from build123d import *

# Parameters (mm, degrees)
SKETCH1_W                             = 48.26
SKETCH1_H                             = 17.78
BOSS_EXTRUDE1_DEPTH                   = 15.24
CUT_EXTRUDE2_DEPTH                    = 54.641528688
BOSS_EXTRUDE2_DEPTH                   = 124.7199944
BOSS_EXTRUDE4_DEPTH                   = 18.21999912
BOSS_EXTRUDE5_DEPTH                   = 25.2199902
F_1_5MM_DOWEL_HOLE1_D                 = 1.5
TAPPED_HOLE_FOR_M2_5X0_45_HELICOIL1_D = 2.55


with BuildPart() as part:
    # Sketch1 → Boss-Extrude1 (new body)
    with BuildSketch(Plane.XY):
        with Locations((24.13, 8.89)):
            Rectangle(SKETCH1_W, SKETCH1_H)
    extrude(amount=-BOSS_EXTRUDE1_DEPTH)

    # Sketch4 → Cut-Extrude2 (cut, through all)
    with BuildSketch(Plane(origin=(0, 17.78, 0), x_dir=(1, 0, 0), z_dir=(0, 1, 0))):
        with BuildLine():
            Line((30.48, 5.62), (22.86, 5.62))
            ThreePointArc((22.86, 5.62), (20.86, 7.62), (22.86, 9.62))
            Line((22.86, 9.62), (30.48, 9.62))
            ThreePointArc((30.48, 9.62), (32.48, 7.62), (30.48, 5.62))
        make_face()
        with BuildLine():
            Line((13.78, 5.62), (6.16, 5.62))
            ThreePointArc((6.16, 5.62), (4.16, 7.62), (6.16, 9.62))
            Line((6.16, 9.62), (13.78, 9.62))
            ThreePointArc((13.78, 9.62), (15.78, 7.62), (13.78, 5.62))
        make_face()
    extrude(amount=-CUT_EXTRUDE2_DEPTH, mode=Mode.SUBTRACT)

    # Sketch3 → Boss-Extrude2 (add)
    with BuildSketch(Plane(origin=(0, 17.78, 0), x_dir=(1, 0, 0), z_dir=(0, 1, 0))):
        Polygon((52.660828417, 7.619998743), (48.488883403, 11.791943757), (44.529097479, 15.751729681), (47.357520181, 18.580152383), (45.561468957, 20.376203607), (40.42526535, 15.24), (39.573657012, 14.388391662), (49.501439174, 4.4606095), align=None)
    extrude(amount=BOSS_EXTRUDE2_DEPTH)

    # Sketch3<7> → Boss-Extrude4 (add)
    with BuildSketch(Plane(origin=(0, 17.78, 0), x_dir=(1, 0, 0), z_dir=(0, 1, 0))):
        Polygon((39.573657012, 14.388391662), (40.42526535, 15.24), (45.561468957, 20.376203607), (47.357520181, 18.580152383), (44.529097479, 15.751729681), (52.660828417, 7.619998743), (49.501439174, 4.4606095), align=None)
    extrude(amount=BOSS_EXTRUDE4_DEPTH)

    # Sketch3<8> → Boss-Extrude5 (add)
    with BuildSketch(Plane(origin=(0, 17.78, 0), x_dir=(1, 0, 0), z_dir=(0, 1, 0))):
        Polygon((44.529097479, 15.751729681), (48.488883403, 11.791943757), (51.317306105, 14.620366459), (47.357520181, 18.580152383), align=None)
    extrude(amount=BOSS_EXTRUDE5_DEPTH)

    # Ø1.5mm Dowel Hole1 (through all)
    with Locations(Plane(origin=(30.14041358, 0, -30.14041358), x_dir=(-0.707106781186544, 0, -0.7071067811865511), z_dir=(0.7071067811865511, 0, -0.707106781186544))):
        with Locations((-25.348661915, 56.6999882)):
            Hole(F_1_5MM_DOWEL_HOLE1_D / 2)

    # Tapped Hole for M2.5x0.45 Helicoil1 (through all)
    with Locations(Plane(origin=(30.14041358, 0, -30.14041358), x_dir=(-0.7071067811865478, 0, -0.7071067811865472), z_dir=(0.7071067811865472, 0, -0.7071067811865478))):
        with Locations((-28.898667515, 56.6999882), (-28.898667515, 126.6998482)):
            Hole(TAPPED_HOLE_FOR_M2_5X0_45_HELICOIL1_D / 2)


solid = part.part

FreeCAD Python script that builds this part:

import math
import FreeCAD as App
import Part
import Sketcher
from FreeCAD import Vector
Q = App.Units.Quantity

doc = App.newDocument("Part")
body = doc.addObject("PartDesign::Body", "Body")

# Sketch on XY plane
sketch1 = body.newObject("Sketcher::SketchObject", "Sketch")
sketch1.AttachmentSupport = (doc.getObject("XY_Plane"), [""])
sketch1.MapMode = "FlatFace"
sketch1.addGeometry(Part.LineSegment(Vector(0, 17.78, 0), Vector(0, 0, 0)), False)
sketch1.addGeometry(Part.LineSegment(Vector(0, 0, 0), Vector(48.26, 0, 0)), False)
sketch1.addGeometry(Part.LineSegment(Vector(48.26, 0, 0), Vector(48.26, 17.78, 0)), False)
sketch1.addGeometry(Part.LineSegment(Vector(48.26, 17.78, 0), Vector(0, 17.78, 0)), False)
sketch1.addConstraint(Sketcher.Constraint("Coincident", 0, 2, 1, 1))
sketch1.addConstraint(Sketcher.Constraint("Coincident", 1, 2, 2, 1))
sketch1.addConstraint(Sketcher.Constraint("Coincident", 2, 2, 3, 1))
sketch1.addConstraint(Sketcher.Constraint("Coincident", 3, 2, 0, 1))
sketch1.addConstraint(Sketcher.Constraint("Vertical", 0))
sketch1.addConstraint(Sketcher.Constraint("Horizontal", 1))
sketch1.addConstraint(Sketcher.Constraint("Vertical", 2))
sketch1.addConstraint(Sketcher.Constraint("Horizontal", 3))
sketch1.addConstraint(Sketcher.Constraint("Coincident", 0, 2, -1, 1))
sketch1.addConstraint(Sketcher.Constraint("DistanceX", 1, 1, 1, 2, Q("1.9 in")))
sketch1.addConstraint(Sketcher.Constraint("DistanceY", 0, 2, 0, 1, Q("0.7 in")))
pad1 = body.newObject("PartDesign::Pad", "Pad")
pad1.Profile = sketch1
pad1.Length = Q("0.6 in")
pad1.Reversed = True

# Sketch on XZ plane
sketch2 = body.newObject("Sketcher::SketchObject", "Sketch001")
sketch2.AttachmentSupport = (doc.getObject("XZ_Plane"), [""])
sketch2.MapMode = "FlatFace"
sketch2.AttachmentOffset = App.Placement(Vector(0, 0, -0.7 * 25.4), App.Rotation())
sketch2.addGeometry(Part.LineSegment(Vector(22.86, -5.62, 0), Vector(30.48, -5.62, 0)), False)
sketch2.addGeometry(Part.ArcOfCircle(Part.Circle(Vector(30.48, -7.62, 0), Vector(0, 0, 1), 2), math.radians(-90), math.radians(90)), False)
sketch2.addGeometry(Part.LineSegment(Vector(30.48, -9.62, 0), Vector(22.86, -9.62, 0)), False)
sketch2.addGeometry(Part.ArcOfCircle(Part.Circle(Vector(22.86, -7.62, 0), Vector(0, 0, 1), 2), math.radians(90), math.radians(270)), False)
sketch2.addGeometry(Part.LineSegment(Vector(6.16, -5.62, 0), Vector(13.78, -5.62, 0)), False)
sketch2.addGeometry(Part.ArcOfCircle(Part.Circle(Vector(13.78, -7.62, 0), Vector(0, 0, 1), 2), math.radians(-90), math.radians(90)), False)
sketch2.addGeometry(Part.LineSegment(Vector(13.78, -9.62, 0), Vector(6.16, -9.62, 0)), False)
sketch2.addGeometry(Part.ArcOfCircle(Part.Circle(Vector(6.16, -7.62, 0), Vector(0, 0, 1), 2), math.radians(90), math.radians(270)), False)
sketch2.addConstraint(Sketcher.Constraint("Tangent", 0, 2, 1, 2))
sketch2.addConstraint(Sketcher.Constraint("Tangent", 1, 1, 2, 1))
sketch2.addConstraint(Sketcher.Constraint("Tangent", 2, 2, 3, 2))
sketch2.addConstraint(Sketcher.Constraint("Tangent", 3, 1, 0, 1))
sketch2.addConstraint(Sketcher.Constraint("Tangent", 4, 2, 5, 2))
sketch2.addConstraint(Sketcher.Constraint("Tangent", 5, 1, 6, 1))
sketch2.addConstraint(Sketcher.Constraint("Tangent", 6, 2, 7, 2))
sketch2.addConstraint(Sketcher.Constraint("Tangent", 7, 1, 4, 1))
sketch2.addConstraint(Sketcher.Constraint("Horizontal", 0))
sketch2.addConstraint(Sketcher.Constraint("Horizontal", 2))
sketch2.addConstraint(Sketcher.Constraint("Horizontal", 4))
sketch2.addConstraint(Sketcher.Constraint("Horizontal", 6))
sketch2.addConstraint(Sketcher.Constraint("Equal", 3, 5))
sketch2.addConstraint(Sketcher.Constraint("Horizontal", 3, 3, 5, 3))
sketch2.addConstraint(Sketcher.Constraint("Equal", 2, 4))
sketch2.addConstraint(Sketcher.Constraint("DistanceX", 0, 1, 0, 2, Q("0.3 in")))
sketch2.addConstraint(Sketcher.Constraint("DistanceX", -1, 1, 1, 3, Q("1.2 in")))
sketch2.addConstraint(Sketcher.Constraint("DistanceY", 1, 3, -1, 1, Q("0.3 in")))
sketch2.addConstraint(Sketcher.Constraint("Radius", 1, 2.0))
sketch2.addConstraint(Sketcher.Constraint("DistanceX", -1, 1, 5, 3, 13.78))
pocket1 = body.newObject("PartDesign::Pocket", "Pocket")
pocket1.Profile = sketch2
pocket1.Type = "ThroughAll"
pocket1.Reversed = True

# Sketch on XZ plane
sketch3 = body.newObject("Sketcher::SketchObject", "Sketch002")
sketch3.AttachmentSupport = (doc.getObject("XZ_Plane"), [""])
sketch3.MapMode = "FlatFace"
sketch3.AttachmentOffset = App.Placement(Vector(0, 0, -0.7 * 25.4), App.Rotation())
sketch3.addGeometry(Part.LineSegment(Vector(52.660828, -7.619999, 0), Vector(44.529097, -15.75173, 0)), False)
sketch3.addGeometry(Part.LineSegment(Vector(44.529097, -15.75173, 0), Vector(47.35752, -18.580152, 0)), False)
sketch3.addGeometry(Part.LineSegment(Vector(47.35752, -18.580152, 0), Vector(45.561469, -20.376204, 0)), False)
sketch3.addGeometry(Part.LineSegment(Vector(45.561469, -20.376204, 0), Vector(39.573657, -14.388392, 0)), False)
sketch3.addGeometry(Part.LineSegment(Vector(39.573657, -14.388392, 0), Vector(49.501439, -4.46061, 0)), False)
sketch3.addGeometry(Part.LineSegment(Vector(49.501439, -4.46061, 0), Vector(52.660828, -7.619999, 0)), False)
sketch3.addConstraint(Sketcher.Constraint("Coincident", 0, 2, 1, 1))
sketch3.addConstraint(Sketcher.Constraint("Coincident", 1, 2, 2, 1))
sketch3.addConstraint(Sketcher.Constraint("Coincident", 2, 2, 3, 1))
sketch3.addConstraint(Sketcher.Constraint("Coincident", 3, 2, 4, 1))
sketch3.addConstraint(Sketcher.Constraint("Coincident", 4, 2, 5, 1))
sketch3.addConstraint(Sketcher.Constraint("Coincident", 5, 2, 0, 1))
sketch3.addConstraint(Sketcher.Constraint("Perpendicular", 0, 1))
sketch3.addConstraint(Sketcher.Constraint("Perpendicular", 1, 2))
sketch3.addConstraint(Sketcher.Constraint("Perpendicular", 2, 3))
sketch3.addConstraint(Sketcher.Constraint("Perpendicular", 3, 4))
sketch3.addConstraint(Sketcher.Constraint("Perpendicular", 4, 5))
sketch3.addConstraint(Sketcher.Constraint("Angle", 0, Q("-135 deg")))
sketch3.addConstraint(Sketcher.Constraint("Distance", 2, Q("0.1 in")))
sketch3.addConstraint(Sketcher.Constraint("DistanceY", 5, 2, -1, 1, Q("0.3 in")))
sketch3.addConstraint(Sketcher.Constraint("Distance", 5, 4.468051))
sketch3.addConstraint(Sketcher.Constraint("DistanceY", 0, 2, -1, 1, 15.75173))
sketch3.addConstraint(Sketcher.Constraint("DistanceX", -1, 1, 1, 2, 47.35752))
sketch3.addConstraint(Sketcher.Constraint("DistanceX", -1, 1, 4, 2, 49.501439))
pad2 = body.newObject("PartDesign::Pad", "Pad001")
pad2.Profile = sketch3
pad2.Length = 124.719994
pad2.Reversed = True

# Sketch on XZ plane
sketch4 = body.newObject("Sketcher::SketchObject", "Sketch003")
sketch4.AttachmentSupport = (doc.getObject("XZ_Plane"), [""])
sketch4.MapMode = "FlatFace"
sketch4.AttachmentOffset = App.Placement(Vector(0, 0, -0.7 * 25.4), App.Rotation())
sketch4.addGeometry(Part.LineSegment(Vector(45.561469, -20.376204, 0), Vector(39.573657, -14.388392, 0)), False)
sketch4.addGeometry(Part.LineSegment(Vector(39.573657, -14.388392, 0), Vector(49.501439, -4.46061, 0)), False)
sketch4.addGeometry(Part.LineSegment(Vector(49.501439, -4.46061, 0), Vector(52.660828, -7.619999, 0)), False)
sketch4.addGeometry(Part.LineSegment(Vector(52.660828, -7.619999, 0), Vector(44.529097, -15.75173, 0)), False)
sketch4.addGeometry(Part.LineSegment(Vector(44.529097, -15.75173, 0), Vector(47.35752, -18.580152, 0)), False)
sketch4.addGeometry(Part.LineSegment(Vector(47.35752, -18.580152, 0), Vector(45.561469, -20.376204, 0)), False)
sketch4.addConstraint(Sketcher.Constraint("Coincident", 0, 2, 1, 1))
sketch4.addConstraint(Sketcher.Constraint("Coincident", 1, 2, 2, 1))
sketch4.addConstraint(Sketcher.Constraint("Coincident", 2, 2, 3, 1))
sketch4.addConstraint(Sketcher.Constraint("Coincident", 3, 2, 4, 1))
sketch4.addConstraint(Sketcher.Constraint("Coincident", 4, 2, 5, 1))
sketch4.addConstraint(Sketcher.Constraint("Coincident", 5, 2, 0, 1))
sketch4.addConstraint(Sketcher.Constraint("Perpendicular", 0, 1))
sketch4.addConstraint(Sketcher.Constraint("Perpendicular", 1, 2))
sketch4.addConstraint(Sketcher.Constraint("Perpendicular", 2, 3))
sketch4.addConstraint(Sketcher.Constraint("Perpendicular", 3, 4))
sketch4.addConstraint(Sketcher.Constraint("Perpendicular", 4, 5))
sketch4.addConstraint(Sketcher.Constraint("Angle", 0, Q("135 deg")))
sketch4.addConstraint(Sketcher.Constraint("Distance", 5, Q("0.1 in")))
sketch4.addConstraint(Sketcher.Constraint("DistanceY", 2, 2, -1, 1, Q("0.3 in")))
sketch4.addConstraint(Sketcher.Constraint("Distance", 2, 4.468051))
sketch4.addConstraint(Sketcher.Constraint("DistanceY", 0, 2, -1, 1, 14.388392))
sketch4.addConstraint(Sketcher.Constraint("DistanceX", -1, 1, 1, 2, 49.501439))
sketch4.addConstraint(Sketcher.Constraint("DistanceX", -1, 1, 4, 2, 47.35752))
pad3 = body.newObject("PartDesign::Pad", "Pad002")
pad3.Profile = sketch4
pad3.Length = 18.219999
pad3.Reversed = True

# Sketch on XZ plane
sketch5 = body.newObject("Sketcher::SketchObject", "Sketch004")
sketch5.AttachmentSupport = (doc.getObject("XZ_Plane"), [""])
sketch5.MapMode = "FlatFace"
sketch5.AttachmentOffset = App.Placement(Vector(0, 0, -0.7 * 25.4), App.Rotation())
sketch5.addGeometry(Part.LineSegment(Vector(44.529097, -15.75173, 0), Vector(48.488883, -11.791944, 0)), False)
sketch5.addGeometry(Part.LineSegment(Vector(48.488883, -11.791944, 0), Vector(51.317306, -14.620366, 0)), False)
sketch5.addGeometry(Part.LineSegment(Vector(51.317306, -14.620366, 0), Vector(47.35752, -18.580152, 0)), False)
sketch5.addGeometry(Part.LineSegment(Vector(47.35752, -18.580152, 0), Vector(44.529097, -15.75173, 0)), False)
sketch5.addConstraint(Sketcher.Constraint("Coincident", 0, 2, 1, 1))
sketch5.addConstraint(Sketcher.Constraint("Coincident", 1, 2, 2, 1))
sketch5.addConstraint(Sketcher.Constraint("Coincident", 2, 2, 3, 1))
sketch5.addConstraint(Sketcher.Constraint("Coincident", 3, 2, 0, 1))
sketch5.addConstraint(Sketcher.Constraint("Perpendicular", 0, 1))
sketch5.addConstraint(Sketcher.Constraint("Perpendicular", 1, 2))
sketch5.addConstraint(Sketcher.Constraint("Perpendicular", 2, 3))
sketch5.addConstraint(Sketcher.Constraint("Angle", 0, Q("45 deg")))
sketch5.addConstraint(Sketcher.Constraint("DistanceX", -1, 1, 2, 2, 47.35752))
sketch5.addConstraint(Sketcher.Constraint("DistanceY", 3, 2, -1, 1, 15.75173))
sketch5.addConstraint(Sketcher.Constraint("DistanceY", 2, 2, 0, 2, 6.788209))
sketch5.addConstraint(Sketcher.Constraint("Distance", 0, 5.599983))
pad4 = body.newObject("PartDesign::Pad", "Pad003")
pad4.Profile = sketch5
pad4.Length = 25.21999
pad4.Reversed = True

# Sketch on an angled plane
sketch6 = body.newObject("Sketcher::SketchObject", "Sketch005")
sketch6.Placement = App.Placement(Vector(30.140414, 0, -30.140414), App.Rotation(Vector(-0.707106781, 0, -0.707106781), Vector(0, 0.999999999, 0), Vector(0.707106781, 0, -0.707106781), "ZXY"))
sketch6.addGeometry(Part.Circle(Vector(-25.348662, 56.699988, 0), Vector(0, 0, 1), 0.75), False)
sketch6.addConstraint(Sketcher.Constraint("Diameter", 0, 1.5))
sketch6.addConstraint(Sketcher.Constraint("DistanceX", 0, 3, -1, 1, 25.348662))
sketch6.addConstraint(Sketcher.Constraint("DistanceY", -1, 1, 0, 3, 56.699988))
doc.recompute()
hole = body.newObject("PartDesign::Hole", "Hole")
hole.Profile = sketch6
hole.ThreadType = "None"
hole.Diameter = 1.5
hole.DepthType = "ThroughAll"

# Sketch on an angled plane
sketch7 = body.newObject("Sketcher::SketchObject", "Sketch006")
sketch7.Placement = App.Placement(Vector(30.140414, 0, -30.140414), App.Rotation(Vector(-0.707106781, 0, -0.707106781), Vector(0, 0.999999999, 0), Vector(0.707106781, 0, -0.707106781), "ZXY"))
sketch7.addGeometry(Part.Circle(Vector(-28.898667, 56.699988, 0), Vector(0, 0, 1), 1.275), False)
sketch7.addGeometry(Part.Circle(Vector(-28.898667, 126.699848, 0), Vector(0, 0, 1), 1.275), False)
sketch7.addConstraint(Sketcher.Constraint("Equal", 0, 1))
sketch7.addConstraint(Sketcher.Constraint("Vertical", 0, 3, 1, 3))
sketch7.addConstraint(Sketcher.Constraint("Diameter", 0, 2.55))
sketch7.addConstraint(Sketcher.Constraint("DistanceY", 0, 3, 1, 3, Q("2.7559 in")))
sketch7.addConstraint(Sketcher.Constraint("DistanceY", -1, 1, 0, 3, 56.699988))
sketch7.addConstraint(Sketcher.Constraint("DistanceX", 0, 3, -1, 1, 28.898667))
doc.recompute()
hole2 = body.newObject("PartDesign::Hole", "Hole001")
hole2.Profile = sketch7
hole2.ThreadType = "None"
hole2.Diameter = 2.55
hole2.DepthType = "ThroughAll"

doc.recompute()
